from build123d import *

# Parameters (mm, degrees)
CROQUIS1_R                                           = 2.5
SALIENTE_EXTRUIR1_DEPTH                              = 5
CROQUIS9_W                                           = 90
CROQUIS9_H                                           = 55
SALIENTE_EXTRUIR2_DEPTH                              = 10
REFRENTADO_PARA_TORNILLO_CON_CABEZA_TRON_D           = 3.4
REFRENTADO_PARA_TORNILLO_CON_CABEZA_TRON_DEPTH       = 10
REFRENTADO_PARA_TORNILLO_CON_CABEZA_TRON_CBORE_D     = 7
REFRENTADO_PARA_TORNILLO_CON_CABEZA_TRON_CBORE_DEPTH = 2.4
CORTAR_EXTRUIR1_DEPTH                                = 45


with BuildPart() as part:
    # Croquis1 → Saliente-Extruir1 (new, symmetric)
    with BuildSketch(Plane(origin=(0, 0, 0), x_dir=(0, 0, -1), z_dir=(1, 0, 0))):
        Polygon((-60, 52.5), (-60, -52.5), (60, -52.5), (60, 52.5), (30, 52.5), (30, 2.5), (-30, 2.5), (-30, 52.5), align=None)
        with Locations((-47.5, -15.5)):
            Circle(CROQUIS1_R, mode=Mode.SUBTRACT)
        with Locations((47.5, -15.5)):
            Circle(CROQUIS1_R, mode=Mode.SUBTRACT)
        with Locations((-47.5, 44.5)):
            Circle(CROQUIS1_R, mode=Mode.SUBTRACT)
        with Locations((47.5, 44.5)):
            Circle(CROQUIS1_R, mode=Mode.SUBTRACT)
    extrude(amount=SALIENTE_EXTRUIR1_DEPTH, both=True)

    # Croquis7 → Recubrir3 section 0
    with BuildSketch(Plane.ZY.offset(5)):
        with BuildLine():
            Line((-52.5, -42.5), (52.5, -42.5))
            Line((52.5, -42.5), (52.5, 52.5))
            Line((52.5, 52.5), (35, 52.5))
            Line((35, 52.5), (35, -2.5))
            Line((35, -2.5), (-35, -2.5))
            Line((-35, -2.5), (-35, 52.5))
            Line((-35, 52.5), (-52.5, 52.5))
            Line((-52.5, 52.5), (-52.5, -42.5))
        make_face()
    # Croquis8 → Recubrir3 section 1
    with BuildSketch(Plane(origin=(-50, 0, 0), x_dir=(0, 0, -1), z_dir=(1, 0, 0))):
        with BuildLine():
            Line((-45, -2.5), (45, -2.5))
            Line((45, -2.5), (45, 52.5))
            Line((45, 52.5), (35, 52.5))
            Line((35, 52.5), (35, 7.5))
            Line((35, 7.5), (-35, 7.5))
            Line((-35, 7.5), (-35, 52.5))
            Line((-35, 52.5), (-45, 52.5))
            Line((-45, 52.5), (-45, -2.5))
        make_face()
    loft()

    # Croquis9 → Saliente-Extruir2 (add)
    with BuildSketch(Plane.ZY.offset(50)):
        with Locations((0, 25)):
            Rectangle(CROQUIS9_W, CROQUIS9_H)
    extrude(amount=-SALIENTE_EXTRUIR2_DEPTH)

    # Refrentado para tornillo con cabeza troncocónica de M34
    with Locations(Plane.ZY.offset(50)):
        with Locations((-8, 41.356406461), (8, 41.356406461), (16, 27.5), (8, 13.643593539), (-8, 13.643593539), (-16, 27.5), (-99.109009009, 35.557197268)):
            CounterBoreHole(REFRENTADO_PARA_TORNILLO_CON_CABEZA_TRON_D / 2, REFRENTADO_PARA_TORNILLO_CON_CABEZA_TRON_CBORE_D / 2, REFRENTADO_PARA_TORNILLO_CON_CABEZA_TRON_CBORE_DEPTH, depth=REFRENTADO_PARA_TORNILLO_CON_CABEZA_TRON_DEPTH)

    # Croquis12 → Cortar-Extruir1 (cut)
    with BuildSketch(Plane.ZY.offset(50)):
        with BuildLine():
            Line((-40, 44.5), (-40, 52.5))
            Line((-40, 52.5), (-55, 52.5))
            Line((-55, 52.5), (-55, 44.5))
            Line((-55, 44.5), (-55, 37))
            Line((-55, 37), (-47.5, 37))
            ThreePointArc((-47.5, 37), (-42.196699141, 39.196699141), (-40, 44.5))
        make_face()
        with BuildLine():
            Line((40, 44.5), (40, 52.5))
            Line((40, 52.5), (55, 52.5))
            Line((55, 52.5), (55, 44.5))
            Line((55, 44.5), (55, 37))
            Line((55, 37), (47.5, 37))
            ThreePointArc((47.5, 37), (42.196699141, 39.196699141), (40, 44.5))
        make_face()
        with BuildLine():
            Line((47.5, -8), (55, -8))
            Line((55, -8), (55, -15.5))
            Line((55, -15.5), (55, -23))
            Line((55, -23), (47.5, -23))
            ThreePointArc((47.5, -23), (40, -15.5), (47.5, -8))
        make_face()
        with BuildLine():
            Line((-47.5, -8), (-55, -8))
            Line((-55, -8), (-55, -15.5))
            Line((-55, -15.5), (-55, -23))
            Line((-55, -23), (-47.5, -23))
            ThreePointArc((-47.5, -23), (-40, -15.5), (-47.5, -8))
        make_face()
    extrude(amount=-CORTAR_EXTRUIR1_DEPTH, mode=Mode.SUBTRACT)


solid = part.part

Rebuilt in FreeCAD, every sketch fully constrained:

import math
import FreeCAD as App
import Part
import Sketcher

V = App.Vector
Q = App.Units.Quantity


def add_polygon(sketch, points):
    """Adds a closed chain of lines whose ends are joined by coincident constraints."""
    first, n = sketch.GeometryCount, len(points)
    for a, b in zip(points, points[1:] + points[:1]):
        sketch.addGeometry(Part.LineSegment(App.Vector(*a, 0), App.Vector(*b, 0)), False)
    for i in range(n):
        sketch.addConstraint(Sketcher.Constraint("Coincident", first + i, 2, first + (i + 1) % n, 1))

doc = App.newDocument("Part")
body = doc.addObject("PartDesign::Body", "Body")

# Sketch on YZ plane
sketch1 = body.newObject("Sketcher::SketchObject", "Sketch")
sketch1.AttachmentSupport = (doc.getObject("YZ_Plane"), [""])
sketch1.MapMode = "FlatFace"
add_polygon(sketch1, [(52.5, 60), (-52.5, 60), (-52.5, -60), (52.5, -60), (52.5, -30), (2.5, -30), (2.5, 30), (52.5, 30)])  # lines 0-7
sketch1.addGeometry(Part.Circle(V(-15.5, 47.5, 0), V(0, 0, 1), 2.5), False)  # 8
sketch1.addGeometry(Part.Circle(V(-15.5, -47.5, 0), V(0, 0, 1), 2.5), False)  # 9
sketch1.addGeometry(Part.Circle(V(44.5, 47.5, 0), V(0, 0, 1), 2.5), False)  # 10
sketch1.addGeometry(Part.Circle(V(44.5, -47.5, 0), V(0, 0, 1), 2.5), False)  # 11
sketch1.addConstraint([
    Sketcher.Constraint("Horizontal", 0),
    Sketcher.Constraint("Vertical", 1),
    Sketcher.Constraint("Horizontal", 2),
    Sketcher.Constraint("Vertical", 3),
    Sketcher.Constraint("Horizontal", 4),
    Sketcher.Constraint("Vertical", 5),
    Sketcher.Constraint("Horizontal", 6),
    Sketcher.Constraint("Vertical", 7),
    Sketcher.Constraint("Equal", 8, 9),
    Sketcher.Constraint("Equal", 9, 10),
    Sketcher.Constraint("Equal", 10, 11),
    Sketcher.Constraint("Symmetric", 0, 2, 2, 2, -1, 1),
    Sketcher.Constraint("Symmetric", 8, 3, 9, 3, -1),
    Sketcher.Constraint("Symmetric", 10, 3, 11, 3, -1),
    Sketcher.Constraint("Symmetric", 3, 2, 6, 2, -1),
    Sketcher.Constraint("Horizontal", 8, 3, 10, 3),
    Sketcher.Constraint("Diameter", 8, Q("5 mm")),
    Sketcher.Constraint("DistanceX", 0, 2, 0, 1, Q("105 mm")),
    Sketcher.Constraint("DistanceX", 4, 2, 4, 1, Q("50 mm")),
    Sketcher.Constraint("DistanceY", 1, 2, 1, 1, Q("120 mm")),
    Sketcher.Constraint("DistanceY", 3, 1, 3, 2, Q("30 mm")),
    Sketcher.Constraint("DistanceY", 9, 3, 8, 3, Q("95 mm")),
    Sketcher.Constraint("DistanceX", 8, 3, 10, 3, Q("60 mm")),
    Sketcher.Constraint("DistanceX", 0, 2, 8, 3, Q("37 mm")),
])
pad1 = body.newObject("PartDesign::Pad", "Pad")
pad1.Profile = sketch1
pad1.Length = 10
pad1.Midplane = True

# Sketch on YZ plane
sketch2 = body.newObject("Sketcher::SketchObject", "Sketch001")
sketch2.AttachmentSupport = (doc.getObject("YZ_Plane"), [""])
sketch2.MapMode = "FlatFace"
sketch2.AttachmentOffset = App.Placement(V(0, 0, -5), App.Rotation())
add_polygon(sketch2, [(-42, -52), (-42, 52), (52, 52), (52, 35), (-2, 35), (-2, -35), (52, -35), (52, -52)])  # lines 0-7
sketch2.addConstraint([
    Sketcher.Constraint("Vertical", 0),
    Sketcher.Constraint("Horizontal", 1),
    Sketcher.Constraint("Vertical", 2),
    Sketcher.Constraint("Horizontal", 3),
    Sketcher.Constraint("Vertical", 4),
    Sketcher.Constraint("Horizontal", 5),
    Sketcher.Constraint("Vertical", 6),
    Sketcher.Constraint("Horizontal", 7),
    Sketcher.Constraint("Symmetric", 2, 2, 5, 2, -1),
    Sketcher.Constraint("Equal", 2, 6),
    Sketcher.Constraint("DistanceX", 1, 1, 1, 2, Q("95 mm")),
    Sketcher.Constraint("DistanceX", 3, 2, 3, 1, Q("55 mm")),
    Sketcher.Constraint("DistanceY", 0, 1, 0, 2, Q("105 mm")),
    Sketcher.Constraint("DistanceY", 4, 2, 4, 1, Q("70 mm")),
    Sketcher.Constraint("DistanceX", 0, 2, -1, 1, Q("42.5 mm")),
])

# Sketch on YZ plane
sketch3 = body.newObject("Sketcher::SketchObject", "Sketch002")
sketch3.AttachmentSupport = (doc.getObject("YZ_Plane"), [""])
sketch3.MapMode = "FlatFace"
sketch3.AttachmentOffset = App.Placement(V(0, 0, -50), App.Rotation())
add_polygon(sketch3, [(-2, 45), (-2, -45), (52, -45), (52, -35), (8, -35), (8, 35), (52, 35), (52, 45)])  # lines 0-7
sketch3.addConstraint([
    Sketcher.Constraint("Vertical", 0),
    Sketcher.Constraint("Horizontal", 1),
    Sketcher.Constraint("Vertical", 2),
    Sketcher.Constraint("Horizontal", 3),
    Sketcher.Constraint("Vertical", 4),
    Sketcher.Constraint("Horizontal", 5),
    Sketcher.Constraint("Vertical", 6),
    Sketcher.Constraint("Horizontal", 7),
    Sketcher.Constraint("Symmetric", 2, 2, 5, 2, -1),
    Sketcher.Constraint("Equal", 2, 6),
    Sketcher.Constraint("DistanceX", 1, 1, 1, 2, Q("55 mm")),
    Sketcher.Constraint("DistanceX", 3, 2, 3, 1, Q("45 mm")),
    Sketcher.Constraint("DistanceY", 0, 2, 0, 1, Q("90 mm")),
    Sketcher.Constraint("DistanceY", 2, 1, 2, 2, Q("10 mm")),
    Sketcher.Constraint("DistanceX", 0, 2, -1, 1, Q("2.5 mm")),
])

additiveloft = body.newObject("PartDesign::AdditiveLoft", "AdditiveLoft")
additiveloft.Profile = sketch2
additiveloft.Sections = [sketch3]

# Sketch on YZ plane
sketch4 = body.newObject("Sketcher::SketchObject", "Sketch003")
sketch4.AttachmentSupport = (doc.getObject("YZ_Plane"), [""])
sketch4.MapMode = "FlatFace"
sketch4.AttachmentOffset = App.Placement(V(0, 0, -50), App.Rotation())
add_polygon(sketch4, [(52, -45), (-2, -45), (-2, 45), (52, 45)])  # lines 0-3
sketch4.addConstraint([
    Sketcher.Constraint("Horizontal", 0),
    Sketcher.Constraint("Vertical", 1),
    Sketcher.Constraint("Horizontal", 2),
    Sketcher.Constraint("Vertical", 3),
    Sketcher.Constraint("DistanceX", 0, 2, 0, 1, Q("55 mm")),
    Sketcher.Constraint("DistanceY", 1, 1, 1, 2, Q("90 mm")),
    Sketcher.Constraint("DistanceY", 0, 2, -1, 1, Q("45 mm")),
    Sketcher.Constraint("DistanceX", 0, 2, -1, 1, Q("2.5 mm")),
])
pad2 = body.newObject("PartDesign::Pad", "Pad001")
pad2.Profile = sketch4
pad2.Length = 10

# Sketch on YZ plane
sketch5 = body.newObject("Sketcher::SketchObject", "Sketch004")
sketch5.AttachmentSupport = (doc.getObject("YZ_Plane"), [""])
sketch5.MapMode = "FlatFace"
sketch5.AttachmentOffset = App.Placement(V(0, 0, -50), App.Rotation())
sketch5.addGeometry([
    Part.Circle(V(41.4, -8, 0), V(0, 0, 1), 1.7),  # 0
    Part.Circle(V(41.4, 8, 0), V(0, 0, 1), 1.7),  # 1
    Part.Circle(V(27.5, 16, 0), V(0, 0, 1), 1.7),  # 2
    Part.Circle(V(13.6, 8, 0), V(0, 0, 1), 1.7),  # 3
    Part.Circle(V(13.6, -8, 0), V(0, 0, 1), 1.7),  # 4
    Part.Circle(V(27.5, -16, 0), V(0, 0, 1), 1.7),  # 5
    Part.Circle(V(35.6, -99.1, 0), V(0, 0, 1), 1.7),  # 6
], False)
sketch5.addConstraint([
    Sketcher.Constraint("Equal", 0, 1),
    Sketcher.Constraint("Equal", 1, 2),
    Sketcher.Constraint("Equal", 2, 3),
    Sketcher.Constraint("Equal", 3, 4),
    Sketcher.Constraint("Equal", 4, 5),
    Sketcher.Constraint("Equal", 5, 6),
    Sketcher.Constraint("Symmetric", 0, 3, 1, 3, -1),
    Sketcher.Constraint("Symmetric", 3, 3, 4, 3, -1),
    Sketcher.Constraint("Symmetric", 2, 3, 5, 3, -1),
    Sketcher.Constraint("Horizontal", 1, 3, 3, 3),
    Sketcher.Constraint("Diameter", 0, Q("3.4 mm")),
    Sketcher.Constraint("DistanceY", 0, 3, -1, 1, Q("8 mm")),
    Sketcher.Constraint("DistanceY", -1, 1, 2, 3, Q("16 mm")),
    Sketcher.Constraint("DistanceX", -1, 1, 2, 3, Q("27.5 mm")),
    Sketcher.Constraint("DistanceY", 6, 3, -1, 1, Q("99.109009 mm")),
    Sketcher.Constraint("DistanceX", 6, 3, 0, 3, Q("5.799209 mm")),
    Sketcher.Constraint("DistanceX", -1, 1, 0, 3, Q("41.356406 mm")),
    Sketcher.Constraint("DistanceX", -1, 1, 3, 3, Q("13.643594 mm")),
])
doc.recompute()
hole = body.newObject("PartDesign::Hole", "Hole")
hole.Profile = sketch5
hole.ThreadType = "None"
hole.Diameter = 3.4
hole.DepthType = "Dimension"
hole.Depth = 10
hole.DrillPoint = "Flat"
hole.HoleCutType = "Counterbore"
hole.HoleCutDiameter = 7
hole.HoleCutDepth = 2.4
hole.Reversed = True

# Sketch on YZ plane
sketch6 = body.newObject("Sketcher::SketchObject", "Sketch005")
sketch6.AttachmentSupport = (doc.getObject("YZ_Plane"), [""])
sketch6.MapMode = "FlatFace"
sketch6.AttachmentOffset = App.Placement(V(0, 0, -50), App.Rotation())
sketch6.addGeometry([
    Part.LineSegment(V(44, -40, 0), V(52, -40, 0)),  # 0
    Part.LineSegment(V(52, -40, 0), V(52, -55, 0)),  # 1
    Part.LineSegment(V(52, -55, 0), V(37, -55, 0)),  # 2
    Part.LineSegment(V(37, -55, 0), V(37, -48, 0)),  # 3
    Part.ArcOfCircle(Part.Circle(V(44, -48, 0), V(0, 0, 1), 8), math.radians(90), math.radians(180)),  # 4
    Part.LineSegment(V(52, 40, 0), V(44, 40, 0)),  # 5
    Part.ArcOfCircle(Part.Circle(V(44, 48, 0), V(0, 0, 1), 8), math.radians(180), math.radians(270)),  # 6
    Part.LineSegment(V(37, 48, 0), V(37, 55, 0)),  # 7
    Part.LineSegment(V(37, 55, 0), V(52, 55, 0)),  # 8
    Part.LineSegment(V(52, 55, 0), V(52, 40, 0)),  # 9
    Part.LineSegment(V(-8, 55, 0), V(-8, 48, 0)),  # 10
    Part.ArcOfCircle(Part.Circle(V(-16, 48, 0), V(0, 0, 1), 8), math.radians(180), math.radians(360)),  # 11
    Part.LineSegment(V(-23, 48, 0), V(-23, 55, 0)),  # 12
    Part.LineSegment(V(-23, 55, 0), V(-8, 55, 0)),  # 13
    Part.LineSegment(V(-8, -48, 0), V(-8, -55, 0)),  # 14
    Part.LineSegment(V(-8, -55, 0), V(-23, -55, 0)),  # 15
    Part.LineSegment(V(-23, -55, 0), V(-23, -48, 0)),  # 16
    Part.ArcOfCircle(Part.Circle(V(-16, -48, 0), V(0, 0, 1), 8), math.radians(0), math.radians(180)),  # 17
], False)
sketch6.addConstraint([
    Sketcher.Constraint("Coincident", 0, 2, 1, 1),
    Sketcher.Constraint("Coincident", 1, 2, 2, 1),
    Sketcher.Constraint("Coincident", 2, 2, 3, 1),
    Sketcher.Constraint("Tangent", 3, 2, 4, 2),
    Sketcher.Constraint("Tangent", 4, 1, 0, 1),
    Sketcher.Constraint("Tangent", 5, 2, 6, 2),
    Sketcher.Constraint("Tangent", 6, 1, 7, 1),
    Sketcher.Constraint("Coincident", 7, 2, 8, 1),
    Sketcher.Constraint("Coincident", 8, 2, 9, 1),
    Sketcher.Constraint("Coincident", 9, 2, 5, 1),
    Sketcher.Constraint("Tangent", 10, 2, 11, 2),
    Sketcher.Constraint("Tangent", 11, 1, 12, 1),
    Sketcher.Constraint("Coincident", 12, 2, 13, 1),
    Sketcher.Constraint("Coincident", 13, 2, 10, 1),
    Sketcher.Constraint("Coincident", 14, 2, 15, 1),
    Sketcher.Constraint("Coincident", 15, 2, 16, 1),
    Sketcher.Constraint("Tangent", 16, 2, 17, 2),
    Sketcher.Constraint("Tangent", 17, 1, 14, 1),
    Sketcher.Constraint("Horizontal", 0),
    Sketcher.Constraint("Vertical", 1),
    Sketcher.Constraint("Horizontal", 2),
    Sketcher.Constraint("Vertical", 3),
    Sketcher.Constraint("Horizontal", 5),
    Sketcher.Constraint("Vertical", 7),
    Sketcher.Constraint("Horizontal", 8),
    Sketcher.Constraint("Vertical", 9),
    Sketcher.Constraint("Vertical", 10),
    Sketcher.Constraint("Vertical", 12),
    Sketcher.Constraint("Horizontal", 13),
    Sketcher.Constraint("Vertical", 14),
    Sketcher.Constraint("Horizontal", 15),
    Sketcher.Constraint("Vertical", 16),
    Sketcher.Constraint("Equal", 4, 6),
    Sketcher.Constraint("Equal", 6, 11),
    Sketcher.Constraint("Equal", 11, 17),
    Sketcher.Constraint("Symmetric", 4, 3, 6, 3, -1),
    Sketcher.Constraint("Symmetric", 11, 3, 17, 3, -1),
    Sketcher.Constraint("Symmetric", 1, 2, 8, 2, -1),
    Sketcher.Constraint("Horizontal", 6, 3, 11, 3),
    Sketcher.Constraint("Horizontal", 8, 2, 12, 2),
    Sketcher.Constraint("Horizontal", 2, 2, 14, 2),
    Sketcher.Constraint("Equal", 15, 1),
    Sketcher.Constraint("Radius", 4, Q("7.5 mm")),
    Sketcher.Constraint("DistanceX", 0, 1, 0, 2, Q("8 mm")),
    Sketcher.Constraint("DistanceY", 0, 2, -1, 1, Q("40 mm")),
    Sketcher.Constraint("DistanceX", -1, 1, 2, 2, Q("37 mm")),
    Sketcher.Constraint("DistanceX", 10, 2, -1, 1, Q("8 mm")),
])
pocket1 = body.newObject("PartDesign::Pocket", "Pocket")
pocket1.Profile = sketch6
pocket1.Length = 45
pocket1.Reversed = True

doc.recompute()
